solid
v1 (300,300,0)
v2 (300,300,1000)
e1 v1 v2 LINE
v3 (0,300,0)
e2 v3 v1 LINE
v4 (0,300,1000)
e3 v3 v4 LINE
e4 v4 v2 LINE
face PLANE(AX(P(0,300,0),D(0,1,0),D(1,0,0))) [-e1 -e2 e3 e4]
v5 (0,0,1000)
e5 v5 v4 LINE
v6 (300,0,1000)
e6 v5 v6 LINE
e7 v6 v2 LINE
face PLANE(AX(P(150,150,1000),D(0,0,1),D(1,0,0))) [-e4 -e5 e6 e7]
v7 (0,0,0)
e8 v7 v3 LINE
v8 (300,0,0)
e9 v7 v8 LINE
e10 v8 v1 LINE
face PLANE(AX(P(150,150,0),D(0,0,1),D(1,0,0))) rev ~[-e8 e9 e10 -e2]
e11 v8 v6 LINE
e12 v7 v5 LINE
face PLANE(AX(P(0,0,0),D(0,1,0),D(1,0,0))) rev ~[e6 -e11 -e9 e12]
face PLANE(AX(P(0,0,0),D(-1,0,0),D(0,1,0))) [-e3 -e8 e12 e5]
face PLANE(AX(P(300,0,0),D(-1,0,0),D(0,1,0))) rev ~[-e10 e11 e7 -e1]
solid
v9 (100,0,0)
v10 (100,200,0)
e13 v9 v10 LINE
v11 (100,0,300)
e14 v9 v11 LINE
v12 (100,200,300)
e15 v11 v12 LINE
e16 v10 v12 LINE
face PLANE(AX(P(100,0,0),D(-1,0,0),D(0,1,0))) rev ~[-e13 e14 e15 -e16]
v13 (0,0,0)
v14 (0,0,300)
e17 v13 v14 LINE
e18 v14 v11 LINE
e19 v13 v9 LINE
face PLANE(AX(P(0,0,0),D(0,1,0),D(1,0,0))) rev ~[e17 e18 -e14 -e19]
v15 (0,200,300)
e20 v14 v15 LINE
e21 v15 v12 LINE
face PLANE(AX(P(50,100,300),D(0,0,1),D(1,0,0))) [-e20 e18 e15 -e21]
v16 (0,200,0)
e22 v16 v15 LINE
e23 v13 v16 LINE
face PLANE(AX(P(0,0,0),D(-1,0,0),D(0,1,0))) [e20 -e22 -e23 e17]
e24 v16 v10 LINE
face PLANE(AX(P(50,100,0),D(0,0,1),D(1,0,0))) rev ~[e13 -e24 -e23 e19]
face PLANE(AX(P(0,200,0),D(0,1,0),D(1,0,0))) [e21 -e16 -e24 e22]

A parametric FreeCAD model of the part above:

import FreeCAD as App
import Part
import Sketcher
from FreeCAD import Vector


def add_polygon(sketch, points):
    """Adds a closed chain of lines whose ends are joined by coincident constraints."""
    first, n = sketch.GeometryCount, len(points)
    for a, b in zip(points, points[1:] + points[:1]):
        sketch.addGeometry(Part.LineSegment(App.Vector(*a, 0), App.Vector(*b, 0)), False)
    for i in range(n):
        sketch.addConstraint(Sketcher.Constraint("Coincident", first + i, 2, first + (i + 1) % n, 1))

doc = App.newDocument("Part")
body = doc.addObject("PartDesign::Body", "Body")

sketch1 = body.newObject("Sketcher::SketchObject", "Sketch")
sketch1.AttachmentSupport = (doc.getObject("XY_Plane"), [""])
sketch1.MapMode = "FlatFace"
add_polygon(sketch1, [(0, 200), (0, 0), (100, 0), (100, 200)])
sketch1.addConstraint([
    Sketcher.Constraint("Vertical", 0),
    Sketcher.Constraint("Horizontal", 1),
    Sketcher.Constraint("Vertical", 2),
    Sketcher.Constraint("Horizontal", 3),
    Sketcher.Constraint("Coincident", 0, 2, -1, 1),
    Sketcher.Constraint("DistanceX", 1, 1, 1, 2, 100.0),
    Sketcher.Constraint("DistanceY", 0, 2, 0, 1, 200.0),
])
pad1 = body.newObject("PartDesign::Pad", "Pad")
pad1.Profile = sketch1
pad1.Length = 300
body2 = doc.addObject("PartDesign::Body", "Body001")

sketch2 = body2.newObject("Sketcher::SketchObject", "Sketch001")
sketch2.AttachmentSupport = (doc.getObject("XY_Plane001"), [""])
sketch2.MapMode = "FlatFace"
add_polygon(sketch2, [(0, 300), (0, 0), (300, 0), (300, 300)])
sketch2.addConstraint([
    Sketcher.Constraint("Vertical", 0),
    Sketcher.Constraint("Horizontal", 1),
    Sketcher.Constraint("Vertical", 2),
    Sketcher.Constraint("Horizontal", 3),
    Sketcher.Constraint("Coincident", 0, 2, -1, 1),
    Sketcher.Constraint("Equal", 3, 0),
    Sketcher.Constraint("DistanceX", 1, 1, 1, 2, 300.0),
])
pad2 = body2.newObject("PartDesign::Pad", "Pad001")
pad2.Profile = sketch2
pad2.Length = 1000

doc.recompute()
